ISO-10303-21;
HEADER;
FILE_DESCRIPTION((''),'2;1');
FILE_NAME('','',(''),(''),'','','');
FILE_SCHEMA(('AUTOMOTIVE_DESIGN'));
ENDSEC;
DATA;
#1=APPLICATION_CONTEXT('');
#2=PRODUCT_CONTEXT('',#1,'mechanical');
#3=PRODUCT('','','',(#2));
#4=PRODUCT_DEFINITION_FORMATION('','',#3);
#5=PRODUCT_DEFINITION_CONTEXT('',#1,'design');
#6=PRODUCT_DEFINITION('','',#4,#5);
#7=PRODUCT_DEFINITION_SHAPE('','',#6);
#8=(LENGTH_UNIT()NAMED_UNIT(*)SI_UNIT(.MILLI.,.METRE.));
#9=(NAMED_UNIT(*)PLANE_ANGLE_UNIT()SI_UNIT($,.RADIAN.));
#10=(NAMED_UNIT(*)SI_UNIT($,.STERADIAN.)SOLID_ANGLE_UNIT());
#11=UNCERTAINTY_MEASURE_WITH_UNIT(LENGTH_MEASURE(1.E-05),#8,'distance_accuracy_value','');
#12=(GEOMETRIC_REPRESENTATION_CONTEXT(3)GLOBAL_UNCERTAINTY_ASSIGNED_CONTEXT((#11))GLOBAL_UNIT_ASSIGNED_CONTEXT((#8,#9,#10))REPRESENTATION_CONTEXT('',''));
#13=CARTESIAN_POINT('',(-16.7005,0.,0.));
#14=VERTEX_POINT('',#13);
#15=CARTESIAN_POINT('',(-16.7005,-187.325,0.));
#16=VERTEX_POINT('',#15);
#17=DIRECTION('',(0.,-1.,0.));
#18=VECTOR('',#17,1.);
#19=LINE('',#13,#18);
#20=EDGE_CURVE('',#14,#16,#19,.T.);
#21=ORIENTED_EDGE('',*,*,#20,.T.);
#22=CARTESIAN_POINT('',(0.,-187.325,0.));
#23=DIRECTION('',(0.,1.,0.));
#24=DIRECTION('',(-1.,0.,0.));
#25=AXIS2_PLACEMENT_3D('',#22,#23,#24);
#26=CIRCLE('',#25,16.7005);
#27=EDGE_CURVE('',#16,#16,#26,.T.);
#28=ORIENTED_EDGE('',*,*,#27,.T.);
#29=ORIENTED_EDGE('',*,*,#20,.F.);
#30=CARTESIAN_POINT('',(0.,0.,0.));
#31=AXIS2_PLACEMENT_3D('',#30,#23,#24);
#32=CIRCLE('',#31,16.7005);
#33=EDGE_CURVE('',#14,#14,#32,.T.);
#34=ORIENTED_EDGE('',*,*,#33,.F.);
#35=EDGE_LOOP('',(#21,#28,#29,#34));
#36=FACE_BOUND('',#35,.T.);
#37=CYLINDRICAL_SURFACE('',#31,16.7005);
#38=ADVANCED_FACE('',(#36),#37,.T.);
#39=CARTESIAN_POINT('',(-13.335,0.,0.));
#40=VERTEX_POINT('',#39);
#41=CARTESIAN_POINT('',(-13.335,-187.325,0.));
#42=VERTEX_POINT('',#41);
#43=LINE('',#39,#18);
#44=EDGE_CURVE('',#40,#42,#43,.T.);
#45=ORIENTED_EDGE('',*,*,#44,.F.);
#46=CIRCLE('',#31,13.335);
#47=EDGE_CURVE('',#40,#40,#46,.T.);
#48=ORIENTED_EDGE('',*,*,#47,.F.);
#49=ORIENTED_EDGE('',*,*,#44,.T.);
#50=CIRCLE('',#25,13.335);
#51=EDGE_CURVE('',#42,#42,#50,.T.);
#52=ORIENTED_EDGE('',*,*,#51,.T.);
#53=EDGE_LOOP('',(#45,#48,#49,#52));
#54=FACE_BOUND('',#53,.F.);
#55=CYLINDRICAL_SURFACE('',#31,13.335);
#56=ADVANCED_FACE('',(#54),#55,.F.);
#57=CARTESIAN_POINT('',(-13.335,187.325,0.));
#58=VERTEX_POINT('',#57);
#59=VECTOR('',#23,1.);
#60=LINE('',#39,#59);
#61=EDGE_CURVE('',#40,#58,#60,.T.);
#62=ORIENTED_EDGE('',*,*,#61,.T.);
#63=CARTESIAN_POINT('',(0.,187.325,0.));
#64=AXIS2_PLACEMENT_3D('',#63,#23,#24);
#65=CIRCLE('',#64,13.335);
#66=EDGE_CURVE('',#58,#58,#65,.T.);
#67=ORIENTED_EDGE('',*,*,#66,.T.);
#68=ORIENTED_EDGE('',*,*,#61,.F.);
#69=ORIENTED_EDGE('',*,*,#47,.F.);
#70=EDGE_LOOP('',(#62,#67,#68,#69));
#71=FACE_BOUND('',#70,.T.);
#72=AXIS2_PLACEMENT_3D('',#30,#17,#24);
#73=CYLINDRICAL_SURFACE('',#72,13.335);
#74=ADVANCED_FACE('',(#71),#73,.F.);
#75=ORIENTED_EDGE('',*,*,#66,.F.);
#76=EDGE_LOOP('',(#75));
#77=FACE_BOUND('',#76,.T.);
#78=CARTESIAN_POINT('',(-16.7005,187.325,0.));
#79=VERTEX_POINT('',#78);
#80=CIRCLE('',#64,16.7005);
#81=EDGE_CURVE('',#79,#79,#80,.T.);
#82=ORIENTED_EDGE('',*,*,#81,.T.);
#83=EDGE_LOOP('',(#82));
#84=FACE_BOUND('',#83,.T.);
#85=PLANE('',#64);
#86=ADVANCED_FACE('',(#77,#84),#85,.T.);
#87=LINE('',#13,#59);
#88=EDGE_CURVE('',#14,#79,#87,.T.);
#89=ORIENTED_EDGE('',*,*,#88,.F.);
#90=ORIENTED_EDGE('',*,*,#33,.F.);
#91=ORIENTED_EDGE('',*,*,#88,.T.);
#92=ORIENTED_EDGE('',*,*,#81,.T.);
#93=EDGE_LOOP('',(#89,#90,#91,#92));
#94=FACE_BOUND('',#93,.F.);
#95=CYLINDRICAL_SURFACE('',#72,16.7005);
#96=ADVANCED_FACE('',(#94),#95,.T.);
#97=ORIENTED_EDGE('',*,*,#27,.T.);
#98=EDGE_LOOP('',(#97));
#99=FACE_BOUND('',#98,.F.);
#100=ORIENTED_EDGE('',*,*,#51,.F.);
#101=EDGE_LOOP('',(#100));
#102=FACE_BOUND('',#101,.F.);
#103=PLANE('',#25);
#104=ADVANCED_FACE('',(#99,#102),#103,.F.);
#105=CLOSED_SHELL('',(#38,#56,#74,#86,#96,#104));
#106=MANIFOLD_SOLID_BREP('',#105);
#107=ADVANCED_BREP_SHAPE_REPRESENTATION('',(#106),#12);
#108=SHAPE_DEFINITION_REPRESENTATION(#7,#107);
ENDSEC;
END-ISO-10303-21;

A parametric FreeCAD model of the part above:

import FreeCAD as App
import Part
import Sketcher
from FreeCAD import Vector
Q = App.Units.Quantity

doc = App.newDocument("Part")
params = doc.addObject("Spreadsheet::Sheet", "Params")
for row, (alias, value) in enumerate([
    ("sketch1_diameter", "1.05 in"),
    ("sketch1_diameter2", "1.315 in"),
    ("pad1_length", "14.75 in"),
], start=1):
    params.set(f"A{row}", alias)
    params.set(f"B{row}", "=" + value)
    params.setAlias(f"B{row}", alias)

body = doc.addObject("PartDesign::Body", "Body")

# Sketch on XZ plane
sketch1 = body.newObject("Sketcher::SketchObject", "Sketch")
sketch1.AttachmentSupport = (doc.getObject("XZ_Plane"), [""])
sketch1.MapMode = "FlatFace"
sketch1.addGeometry(Part.Circle(Vector(0, 0, 0), Vector(0, 0, 1), 17), False)
sketch1.addGeometry(Part.Circle(Vector(0, 0, 0), Vector(0, 0, 1), 13), False)
sketch1.addConstraint(Sketcher.Constraint("Coincident", 0, 3, -1, 1))
sketch1.addConstraint(Sketcher.Constraint("Coincident", 1, 3, -1, 1))
sketch1.addConstraint(Sketcher.Constraint("Diameter", 1, Q("1.05 in")))
sketch1.addConstraint(Sketcher.Constraint("Diameter", 0, Q("1.315 in")))
sketch1.setExpression("Constraints[2]", "Params.sketch1_diameter")
sketch1.setExpression("Constraints[3]", "Params.sketch1_diameter2")
pad1 = body.newObject("PartDesign::Pad", "Pad")
pad1.Profile = sketch1
pad1.setExpression("Length", "Params.pad1_length")
pad1.Midplane = True

doc.recompute()
